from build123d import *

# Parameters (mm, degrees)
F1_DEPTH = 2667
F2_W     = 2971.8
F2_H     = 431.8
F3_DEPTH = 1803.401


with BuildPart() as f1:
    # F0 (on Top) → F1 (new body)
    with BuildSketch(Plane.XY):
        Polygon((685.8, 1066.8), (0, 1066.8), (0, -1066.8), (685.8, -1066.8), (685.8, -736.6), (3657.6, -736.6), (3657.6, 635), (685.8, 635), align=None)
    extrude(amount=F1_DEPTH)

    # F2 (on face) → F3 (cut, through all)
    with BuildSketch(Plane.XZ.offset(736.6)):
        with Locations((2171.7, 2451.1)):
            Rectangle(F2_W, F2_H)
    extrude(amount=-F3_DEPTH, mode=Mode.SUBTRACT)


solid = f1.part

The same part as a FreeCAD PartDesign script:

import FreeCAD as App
import Part
import Sketcher
from FreeCAD import Vector
Q = App.Units.Quantity

doc = App.newDocument("Part")
params = doc.addObject("Spreadsheet::Sheet", "Params")
for row, (alias, value) in enumerate([
    ("sketch1_width", "27 in"),
    ("sketch1_width2", "117 in"),
    ("sketch1_height", "84 in"),
    ("sketch1_height2", "13 in"),
    ("sketch1_height3", "54 in"),
    ("pad1_length", "105 in"),
    ("sketch2_width", "117 in"),
    ("sketch2_height", "17 in"),
], start=1):
    params.set(f"A{row}", alias)
    params.set(f"B{row}", "=" + value)
    params.setAlias(f"B{row}", alias)

body = doc.addObject("PartDesign::Body", "Body")

sketch1 = body.newObject("Sketcher::SketchObject", "Sketch")
sketch1.AttachmentSupport = (doc.getObject("XY_Plane"), [""])
sketch1.MapMode = "FlatFace"
sketch1.addGeometry(Part.LineSegment(Vector(685.8, 1066.8, 0), Vector(0, 1066.8, 0)), False)
sketch1.addGeometry(Part.LineSegment(Vector(0, 1066.8, 0), Vector(0, -1066.8, 0)), False)
sketch1.addGeometry(Part.LineSegment(Vector(0, -1066.8, 0), Vector(685.8, -1066.8, 0)), False)
sketch1.addGeometry(Part.LineSegment(Vector(685.8, -1066.8, 0), Vector(685.8, -736.6, 0)), False)
sketch1.addGeometry(Part.LineSegment(Vector(685.8, -736.6, 0), Vector(3657.6, -736.6, 0)), False)
sketch1.addGeometry(Part.LineSegment(Vector(3657.6, -736.6, 0), Vector(3657.6, 635, 0)), False)
sketch1.addGeometry(Part.LineSegment(Vector(3657.6, 635, 0), Vector(685.8, 635, 0)), False)
sketch1.addGeometry(Part.LineSegment(Vector(685.8, 635, 0), Vector(685.8, 1066.8, 0)), False)
sketch1.addConstraint(Sketcher.Constraint("Coincident", 0, 2, 1, 1))
sketch1.addConstraint(Sketcher.Constraint("Coincident", 1, 2, 2, 1))
sketch1.addConstraint(Sketcher.Constraint("Coincident", 2, 2, 3, 1))
sketch1.addConstraint(Sketcher.Constraint("Coincident", 3, 2, 4, 1))
sketch1.addConstraint(Sketcher.Constraint("Coincident", 4, 2, 5, 1))
sketch1.addConstraint(Sketcher.Constraint("Coincident", 5, 2, 6, 1))
sketch1.addConstraint(Sketcher.Constraint("Coincident", 6, 2, 7, 1))
sketch1.addConstraint(Sketcher.Constraint("Coincident", 7, 2, 0, 1))
sketch1.addConstraint(Sketcher.Constraint("Horizontal", 0))
sketch1.addConstraint(Sketcher.Constraint("Vertical", 1))
sketch1.addConstraint(Sketcher.Constraint("Horizontal", 2))
sketch1.addConstraint(Sketcher.Constraint("Vertical", 3))
sketch1.addConstraint(Sketcher.Constraint("Horizontal", 4))
sketch1.addConstraint(Sketcher.Constraint("Vertical", 5))
sketch1.addConstraint(Sketcher.Constraint("Horizontal", 6))
sketch1.addConstraint(Sketcher.Constraint("Vertical", 7))
sketch1.addConstraint(Sketcher.Constraint("Symmetric", 0, 2, 1, 2, -1, 1))
sketch1.addConstraint(Sketcher.Constraint("Vertical", 3, 2, 6, 2))
sketch1.addConstraint(Sketcher.Constraint("DistanceX", 0, 2, 0, 1, Q("27 in")))
sketch1.addConstraint(Sketcher.Constraint("DistanceX", 4, 1, 4, 2, Q("117 in")))
sketch1.addConstraint(Sketcher.Constraint("DistanceY", 1, 2, 1, 1, Q("84 in")))
sketch1.addConstraint(Sketcher.Constraint("DistanceY", 3, 1, 3, 2, Q("13 in")))
sketch1.addConstraint(Sketcher.Constraint("DistanceY", 5, 1, 5, 2, Q("54 in")))
sketch1.setExpression("Constraints[18]", "Params.sketch1_width")
sketch1.setExpression("Constraints[19]", "Params.sketch1_width2")
sketch1.setExpression("Constraints[20]", "Params.sketch1_height")
sketch1.setExpression("Constraints[21]", "Params.sketch1_height2")
sketch1.setExpression("Constraints[22]", "Params.sketch1_height3")
pad1 = body.newObject("PartDesign::Pad", "Pad")
pad1.Profile = sketch1
pad1.setExpression("Length", "Params.pad1_length")

sketch2 = body.newObject("Sketcher::SketchObject", "Sketch001")
sketch2.AttachmentSupport = (doc.getObject("XZ_Plane"), [""])
sketch2.MapMode = "FlatFace"
sketch2.AttachmentOffset = App.Placement(Vector(0, 0, 29 * 25.4), App.Rotation())
sketch2.addGeometry(Part.LineSegment(Vector(685.8, 2667, 0), Vector(685.8, 2235.2, 0)), False)
sketch2.addGeometry(Part.LineSegment(Vector(685.8, 2235.2, 0), Vector(3657.6, 2235.2, 0)), False)
sketch2.addGeometry(Part.LineSegment(Vector(3657.6, 2235.2, 0), Vector(3657.6, 2667, 0)), False)
sketch2.addGeometry(Part.LineSegment(Vector(3657.6, 2667, 0), Vector(685.8, 2667, 0)), False)
sketch2.addConstraint(Sketcher.Constraint("Coincident", 0, 2, 1, 1))
sketch2.addConstraint(Sketcher.Constraint("Coincident", 1, 2, 2, 1))
sketch2.addConstraint(Sketcher.Constraint("Coincident", 2, 2, 3, 1))
sketch2.addConstraint(Sketcher.Constraint("Coincident", 3, 2, 0, 1))
sketch2.addConstraint(Sketcher.Constraint("Vertical", 0))
sketch2.addConstraint(Sketcher.Constraint("Horizontal", 1))
sketch2.addConstraint(Sketcher.Constraint("Vertical", 2))
sketch2.addConstraint(Sketcher.Constraint("Horizontal", 3))
sketch2.addConstraint(Sketcher.Constraint("DistanceX", 1, 1, 1, 2, Q("117 in")))
sketch2.addConstraint(Sketcher.Constraint("DistanceY", 0, 2, 0, 1, Q("17 in")))
sketch2.addConstraint(Sketcher.Constraint("DistanceX", -1, 1, 0, 2, Q("27 in")))
sketch2.addConstraint(Sketcher.Constraint("DistanceY", -1, 1, 0, 2, Q("88 in")))
sketch2.setExpression("Constraints[8]", "Params.sketch2_width")
sketch2.setExpression("Constraints[9]", "Params.sketch2_height")
pocket1 = body.newObject("PartDesign::Pocket", "Pocket")
pocket1.Profile = sketch2
pocket1.Type = "ThroughAll"

doc.recompute()
